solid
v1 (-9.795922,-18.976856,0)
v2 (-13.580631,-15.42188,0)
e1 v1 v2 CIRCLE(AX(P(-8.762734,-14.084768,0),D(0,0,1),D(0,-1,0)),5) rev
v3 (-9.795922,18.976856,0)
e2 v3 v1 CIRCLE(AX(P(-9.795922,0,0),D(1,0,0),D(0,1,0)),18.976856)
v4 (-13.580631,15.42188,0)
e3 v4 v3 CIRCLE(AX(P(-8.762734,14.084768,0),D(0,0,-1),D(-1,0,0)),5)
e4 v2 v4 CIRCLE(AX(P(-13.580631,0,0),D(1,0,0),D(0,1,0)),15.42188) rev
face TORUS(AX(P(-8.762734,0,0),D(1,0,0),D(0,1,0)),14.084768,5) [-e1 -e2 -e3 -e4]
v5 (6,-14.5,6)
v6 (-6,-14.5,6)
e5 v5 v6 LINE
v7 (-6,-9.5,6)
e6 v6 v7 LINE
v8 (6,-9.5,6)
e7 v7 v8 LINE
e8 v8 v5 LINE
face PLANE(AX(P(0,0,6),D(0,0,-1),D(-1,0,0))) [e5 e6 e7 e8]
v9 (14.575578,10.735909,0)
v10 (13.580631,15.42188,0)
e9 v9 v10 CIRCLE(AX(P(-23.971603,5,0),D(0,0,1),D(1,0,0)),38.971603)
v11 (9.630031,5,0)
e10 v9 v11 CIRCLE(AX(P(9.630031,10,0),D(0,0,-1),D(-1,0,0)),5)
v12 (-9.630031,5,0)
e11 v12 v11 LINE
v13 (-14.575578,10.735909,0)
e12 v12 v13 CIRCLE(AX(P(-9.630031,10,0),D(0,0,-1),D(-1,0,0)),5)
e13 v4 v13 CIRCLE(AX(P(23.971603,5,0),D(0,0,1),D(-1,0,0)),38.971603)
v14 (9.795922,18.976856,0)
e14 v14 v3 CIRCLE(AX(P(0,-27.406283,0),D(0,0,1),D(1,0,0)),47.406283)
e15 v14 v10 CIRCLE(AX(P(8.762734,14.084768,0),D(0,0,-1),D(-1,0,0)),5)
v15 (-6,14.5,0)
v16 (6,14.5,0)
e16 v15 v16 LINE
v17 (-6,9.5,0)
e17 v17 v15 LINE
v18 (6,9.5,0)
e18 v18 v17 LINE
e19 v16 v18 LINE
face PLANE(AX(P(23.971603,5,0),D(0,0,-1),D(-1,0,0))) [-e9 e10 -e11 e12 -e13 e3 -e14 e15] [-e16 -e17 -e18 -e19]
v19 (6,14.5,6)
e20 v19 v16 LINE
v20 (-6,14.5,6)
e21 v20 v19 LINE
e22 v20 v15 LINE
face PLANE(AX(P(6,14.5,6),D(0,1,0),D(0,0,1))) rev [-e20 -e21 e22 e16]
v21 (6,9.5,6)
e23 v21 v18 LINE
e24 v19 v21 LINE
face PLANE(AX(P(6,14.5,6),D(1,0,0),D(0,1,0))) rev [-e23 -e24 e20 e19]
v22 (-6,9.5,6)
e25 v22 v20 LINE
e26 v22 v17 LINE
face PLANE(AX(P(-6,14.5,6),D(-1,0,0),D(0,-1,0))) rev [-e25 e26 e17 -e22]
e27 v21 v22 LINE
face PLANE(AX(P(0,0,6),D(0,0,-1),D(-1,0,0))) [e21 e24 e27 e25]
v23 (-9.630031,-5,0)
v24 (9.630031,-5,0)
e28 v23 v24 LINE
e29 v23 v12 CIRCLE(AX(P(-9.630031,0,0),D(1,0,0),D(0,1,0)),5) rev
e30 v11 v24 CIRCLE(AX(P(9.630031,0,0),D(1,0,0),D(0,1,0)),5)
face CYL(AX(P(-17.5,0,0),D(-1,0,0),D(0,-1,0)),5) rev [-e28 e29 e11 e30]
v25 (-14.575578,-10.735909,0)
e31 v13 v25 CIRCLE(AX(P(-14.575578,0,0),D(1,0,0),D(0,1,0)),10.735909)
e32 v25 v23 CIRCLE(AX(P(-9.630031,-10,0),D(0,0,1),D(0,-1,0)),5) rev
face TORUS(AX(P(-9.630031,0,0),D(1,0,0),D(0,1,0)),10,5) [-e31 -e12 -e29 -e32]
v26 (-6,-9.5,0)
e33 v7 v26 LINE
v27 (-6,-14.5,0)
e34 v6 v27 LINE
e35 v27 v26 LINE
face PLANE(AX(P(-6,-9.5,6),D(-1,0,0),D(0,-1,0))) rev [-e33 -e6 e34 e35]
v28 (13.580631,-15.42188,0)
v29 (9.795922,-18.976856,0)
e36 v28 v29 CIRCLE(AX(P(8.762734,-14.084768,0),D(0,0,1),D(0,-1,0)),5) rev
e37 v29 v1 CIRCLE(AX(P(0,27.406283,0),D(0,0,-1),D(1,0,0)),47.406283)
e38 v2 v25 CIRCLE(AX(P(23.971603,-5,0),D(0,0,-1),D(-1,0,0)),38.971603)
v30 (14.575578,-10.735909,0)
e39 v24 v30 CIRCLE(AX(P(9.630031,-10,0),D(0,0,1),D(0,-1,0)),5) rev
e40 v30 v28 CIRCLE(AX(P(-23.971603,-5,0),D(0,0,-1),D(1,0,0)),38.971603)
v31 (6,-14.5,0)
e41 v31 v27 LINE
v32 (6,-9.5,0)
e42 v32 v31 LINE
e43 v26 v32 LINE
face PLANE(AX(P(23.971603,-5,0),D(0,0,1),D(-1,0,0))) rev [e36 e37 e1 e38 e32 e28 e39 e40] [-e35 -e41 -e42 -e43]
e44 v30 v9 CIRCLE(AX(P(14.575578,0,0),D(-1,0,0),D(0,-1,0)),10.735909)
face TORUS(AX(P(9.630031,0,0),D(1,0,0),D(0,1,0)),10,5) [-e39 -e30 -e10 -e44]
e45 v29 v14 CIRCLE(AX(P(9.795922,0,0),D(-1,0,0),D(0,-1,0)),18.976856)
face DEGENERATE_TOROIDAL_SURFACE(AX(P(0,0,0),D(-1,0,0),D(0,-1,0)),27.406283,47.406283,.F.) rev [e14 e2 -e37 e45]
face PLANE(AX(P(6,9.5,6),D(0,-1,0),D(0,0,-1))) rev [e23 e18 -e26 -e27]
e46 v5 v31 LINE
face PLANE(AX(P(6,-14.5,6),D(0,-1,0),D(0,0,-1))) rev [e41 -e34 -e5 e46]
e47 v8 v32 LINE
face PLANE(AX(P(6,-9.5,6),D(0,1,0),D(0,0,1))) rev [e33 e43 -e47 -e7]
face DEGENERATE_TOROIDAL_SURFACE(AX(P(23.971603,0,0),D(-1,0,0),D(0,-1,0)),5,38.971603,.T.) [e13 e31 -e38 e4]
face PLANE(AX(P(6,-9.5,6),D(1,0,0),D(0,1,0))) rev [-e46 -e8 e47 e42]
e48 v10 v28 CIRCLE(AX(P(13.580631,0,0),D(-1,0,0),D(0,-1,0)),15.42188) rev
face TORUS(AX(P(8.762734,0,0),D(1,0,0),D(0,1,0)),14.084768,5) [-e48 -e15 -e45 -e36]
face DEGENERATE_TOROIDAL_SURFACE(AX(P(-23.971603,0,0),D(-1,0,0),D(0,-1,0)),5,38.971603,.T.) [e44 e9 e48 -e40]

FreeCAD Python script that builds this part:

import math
import FreeCAD as App
import Part
import Sketcher
Q = App.Units.Quantity


def edges_at(feature, points):
    """Names of the edges that pass closest to the given points."""
    edges = feature.Shape.Edges
    near = lambda p: min(range(len(edges)), key=lambda i: edges[i].distToShape(Part.Vertex(*p))[0])
    return sorted({f"Edge{near(p) + 1}" for p in points})

doc = App.newDocument("Part")
params = doc.addObject("Spreadsheet::Sheet", "Params")
for row, (alias, value) in enumerate([
    ("sketch1_width", "30 mm"),
    ("revolution_angle", "180 deg"),
    ("fillet_radius", "5 mm"),
    ("fillet2_radius", "5 mm"),
    ("sketch2_width", "12 mm"),
    ("sketch2_height", "5 mm"),
    ("pocket1_length", "6 mm"),
], start=1):
    params.set(f"A{row}", alias)
    params.set(f"B{row}", "=" + value)
    params.setAlias(f"B{row}", alias)

body = doc.addObject("PartDesign::Body", "Body")

sketch1 = body.newObject("Sketcher::SketchObject", "Sketch")
sketch1.AttachmentSupport = (doc.getObject("XY_Plane"), [""])
sketch1.MapMode = "FlatFace"
sketch1.addGeometry(Part.LineSegment(App.Vector(-15, 5, 0), App.Vector(15, 5, 0)), False)
sketch1.addGeometry(Part.ArcOfCircle(Part.Circle(App.Vector(-24, 5, 0), App.Vector(0, 0, 1), 39), math.radians(0), math.radians(19.92)), False)
sketch1.addGeometry(Part.ArcOfCircle(Part.Circle(App.Vector(0, -27, 0), App.Vector(0, 0, 1), 47), math.radians(74), math.radians(106)), False)
sketch1.addGeometry(Part.ArcOfCircle(Part.Circle(App.Vector(24, 5, 0), App.Vector(0, 0, 1), 39), math.radians(160.08), math.radians(180)), False)
sketch1.addConstraint(Sketcher.Constraint("Coincident", 0, 2, 1, 1))
sketch1.addConstraint(Sketcher.Constraint("Coincident", 1, 2, 2, 1))
sketch1.addConstraint(Sketcher.Constraint("Coincident", 2, 2, 3, 1))
sketch1.addConstraint(Sketcher.Constraint("Coincident", 3, 2, 0, 1))
sketch1.addConstraint(Sketcher.Constraint("Horizontal", 0))
sketch1.addConstraint(Sketcher.Constraint("Equal", 1, 3))
sketch1.addConstraint(Sketcher.Constraint("Symmetric", 1, 3, 3, 3, -2))
sketch1.addConstraint(Sketcher.Constraint("PointOnObject", 2, 3, -2))
sketch1.addConstraint(Sketcher.Constraint("Horizontal", 3, 3, 0, 2))
sketch1.addConstraint(Sketcher.Constraint("DistanceX", 0, 1, 0, 2, Q("30 mm")))
sketch1.addConstraint(Sketcher.Constraint("DistanceY", -1, 1, 1, 3, Q("5 mm")))
sketch1.addConstraint(Sketcher.Constraint("Radius", 1, Q("38.971603 mm")))
sketch1.addConstraint(Sketcher.Constraint("Radius", 2, Q("47.406283 mm")))
sketch1.addConstraint(Sketcher.Constraint("DistanceX", -1, 1, 1, 2, Q("12.669081 mm")))
sketch1.setExpression("Constraints[9]", "Params.sketch1_width")
revolution = body.newObject("PartDesign::Revolution", "Revolution")
revolution.Profile = sketch1
revolution.ReferenceAxis = (sketch1, ["H_Axis"])
revolution.setExpression("Angle", "Params.revolution_angle")
doc.recompute()

fillet = body.newObject("PartDesign::Fillet", "Fillet")
fillet.Base = (revolution, edges_at(revolution, [(12.669, 0, 18.276), (-12.669, 0, 18.276)]))
fillet.setExpression("Radius", "Params.fillet_radius")
doc.recompute()

fillet2 = body.newObject("PartDesign::Fillet", "Fillet001")
fillet2.Base = (fillet, edges_at(fillet, [(-15, 0, 5), (15, 0, 5)]))
fillet2.setExpression("Radius", "Params.fillet2_radius")

sketch2 = body.newObject("Sketcher::SketchObject", "Sketch001")
sketch2.AttachmentSupport = (doc.getObject("XY_Plane"), [""])
sketch2.MapMode = "FlatFace"
sketch2.addGeometry(Part.LineSegment(App.Vector(6, 14, 0), App.Vector(6, 10, 0)), False)
sketch2.addGeometry(Part.LineSegment(App.Vector(6, 10, 0), App.Vector(-6, 10, 0)), False)
sketch2.addGeometry(Part.LineSegment(App.Vector(-6, 10, 0), App.Vector(-6, 14, 0)), False)
sketch2.addGeometry(Part.LineSegment(App.Vector(-6, 14, 0), App.Vector(6, 14, 0)), False)
sketch2.addGeometry(Part.LineSegment(App.Vector(6, -10, 0), App.Vector(6, -14, 0)), False)
sketch2.addGeometry(Part.LineSegment(App.Vector(6, -14, 0), App.Vector(-6, -14, 0)), False)
sketch2.addGeometry(Part.LineSegment(App.Vector(-6, -14, 0), App.Vector(-6, -10, 0)), False)
sketch2.addGeometry(Part.LineSegment(App.Vector(-6, -10, 0), App.Vector(6, -10, 0)), False)
sketch2.addConstraint(Sketcher.Constraint("Coincident", 0, 2, 1, 1))
sketch2.addConstraint(Sketcher.Constraint("Coincident", 1, 2, 2, 1))
sketch2.addConstraint(Sketcher.Constraint("Coincident", 2, 2, 3, 1))
sketch2.addConstraint(Sketcher.Constraint("Coincident", 3, 2, 0, 1))
sketch2.addConstraint(Sketcher.Constraint("Coincident", 4, 2, 5, 1))
sketch2.addConstraint(Sketcher.Constraint("Coincident", 5, 2, 6, 1))
sketch2.addConstraint(Sketcher.Constraint("Coincident", 6, 2, 7, 1))
sketch2.addConstraint(Sketcher.Constraint("Coincident", 7, 2, 4, 1))
sketch2.addConstraint(Sketcher.Constraint("Vertical", 0))
sketch2.addConstraint(Sketcher.Constraint("Horizontal", 1))
sketch2.addConstraint(Sketcher.Constraint("Vertical", 2))
sketch2.addConstraint(Sketcher.Constraint("Horizontal", 3))
sketch2.addConstraint(Sketcher.Constraint("Vertical", 4))
sketch2.addConstraint(Sketcher.Constraint("Horizontal", 5))
sketch2.addConstraint(Sketcher.Constraint("Vertical", 6))
sketch2.addConstraint(Sketcher.Constraint("Horizontal", 7))
sketch2.addConstraint(Sketcher.Constraint("Symmetric", 2, 2, 4, 2, -1, 1))
sketch2.addConstraint(Sketcher.Constraint("Symmetric", 0, 2, 6, 2, -1, 1))
sketch2.addConstraint(Sketcher.Constraint("Vertical", 3, 2, 4, 2))
sketch2.addConstraint(Sketcher.Constraint("DistanceX", 1, 2, 1, 1, Q("12 mm")))
sketch2.addConstraint(Sketcher.Constraint("DistanceY", 0, 2, 0, 1, Q("5 mm")))
sketch2.addConstraint(Sketcher.Constraint("DistanceY", 4, 2, 0, 2, Q("24 mm")))
sketch2.setExpression("Constraints[19]", "Params.sketch2_width")
sketch2.setExpression("Constraints[20]", "Params.sketch2_height")
pocket1 = body.newObject("PartDesign::Pocket", "Pocket")
pocket1.Profile = sketch2
pocket1.setExpression("Length", "Params.pocket1_length")
pocket1.Reversed = True

doc.recompute()
